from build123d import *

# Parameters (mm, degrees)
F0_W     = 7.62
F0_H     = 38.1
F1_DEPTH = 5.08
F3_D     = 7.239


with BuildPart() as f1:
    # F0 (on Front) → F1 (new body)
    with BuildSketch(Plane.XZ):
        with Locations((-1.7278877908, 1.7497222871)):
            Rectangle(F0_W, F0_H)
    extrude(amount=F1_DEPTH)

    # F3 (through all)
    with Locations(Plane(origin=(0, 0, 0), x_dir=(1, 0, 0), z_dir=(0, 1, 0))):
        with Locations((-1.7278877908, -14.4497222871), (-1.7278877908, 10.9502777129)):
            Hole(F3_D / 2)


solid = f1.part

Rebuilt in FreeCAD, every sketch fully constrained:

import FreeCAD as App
import Part
import Sketcher

V = App.Vector
Q = App.Units.Quantity

doc = App.newDocument("Part")
body = doc.addObject("PartDesign::Body", "Body")

# Sketch on XZ plane
sketch1 = doc.addObject("Sketcher::SketchObject", "Sketch")
body.addObject(sketch1)
sketch1.AttachmentSupport = (doc.XZ_Plane, [""])
sketch1.MapMode = "FlatFace"
sketch1.addGeometry(Part.LineSegment(V(-5.537888, 20.799722, 0), V(-5.537888, -17.300278, 0)), False)
sketch1.addGeometry(Part.LineSegment(V(-5.537888, -17.300278, 0), V(2.082112, -17.300278, 0)), False)
sketch1.addGeometry(Part.LineSegment(V(2.082112, -17.300278, 0), V(2.082112, 20.799722, 0)), False)
sketch1.addGeometry(Part.LineSegment(V(2.082112, 20.799722, 0), V(-5.537888, 20.799722, 0)), False)
sketch1.addConstraint(Sketcher.Constraint("Coincident", 0, 2, 1, 1))
sketch1.addConstraint(Sketcher.Constraint("Coincident", 1, 2, 2, 1))
sketch1.addConstraint(Sketcher.Constraint("Coincident", 2, 2, 3, 1))
sketch1.addConstraint(Sketcher.Constraint("Coincident", 3, 2, 0, 1))
sketch1.addConstraint(Sketcher.Constraint("Vertical", 0))
sketch1.addConstraint(Sketcher.Constraint("Horizontal", 1))
sketch1.addConstraint(Sketcher.Constraint("Vertical", 2))
sketch1.addConstraint(Sketcher.Constraint("Horizontal", 3))
sketch1.addConstraint(Sketcher.Constraint("DistanceX", 1, 1, 1, 2, Q("0.3 in")))
sketch1.addConstraint(Sketcher.Constraint("DistanceY", 0, 2, 0, 1, Q("1.5 in")))
sketch1.addConstraint(Sketcher.Constraint("DistanceX", 0, 2, -1, 1, 5.537888))
sketch1.addConstraint(Sketcher.Constraint("DistanceY", 0, 2, -1, 1, 17.300278))
pad1 = doc.addObject("PartDesign::Pad", "Pad")
body.addObject(pad1)
pad1.Profile = sketch1
pad1.Length = Q("0.2 in")

# Sketch on XZ plane
sketch2 = doc.addObject("Sketcher::SketchObject", "Sketch001")
body.addObject(sketch2)
sketch2.AttachmentSupport = (doc.XZ_Plane, [""])
sketch2.MapMode = "FlatFace"
sketch2.addGeometry(Part.Circle(V(-1.727888, 14.449722, 0), V(0, 0, 1), 3.6195), False)
sketch2.addGeometry(Part.Circle(V(-1.727888, -10.950278, 0), V(0, 0, 1), 3.6195), False)
sketch2.addConstraint(Sketcher.Constraint("Equal", 0, 1))
sketch2.addConstraint(Sketcher.Constraint("Vertical", 0, 3, 1, 3))
sketch2.addConstraint(Sketcher.Constraint("Diameter", 0, Q("0.285 in")))
sketch2.addConstraint(Sketcher.Constraint("DistanceY", 1, 3, 0, 3, Q("1 in")))
sketch2.addConstraint(Sketcher.Constraint("DistanceX", 0, 3, -1, 1, 1.727888))
sketch2.addConstraint(Sketcher.Constraint("DistanceY", -1, 1, 0, 3, 14.449722))
doc.recompute()
hole = doc.addObject("PartDesign::Hole", "Hole")
body.addObject(hole)
hole.Profile = sketch2
hole.ThreadType = "None"
hole.Diameter = Q("0.285 in")
hole.DepthType = "ThroughAll"
hole.Reversed = True

doc.recompute()
